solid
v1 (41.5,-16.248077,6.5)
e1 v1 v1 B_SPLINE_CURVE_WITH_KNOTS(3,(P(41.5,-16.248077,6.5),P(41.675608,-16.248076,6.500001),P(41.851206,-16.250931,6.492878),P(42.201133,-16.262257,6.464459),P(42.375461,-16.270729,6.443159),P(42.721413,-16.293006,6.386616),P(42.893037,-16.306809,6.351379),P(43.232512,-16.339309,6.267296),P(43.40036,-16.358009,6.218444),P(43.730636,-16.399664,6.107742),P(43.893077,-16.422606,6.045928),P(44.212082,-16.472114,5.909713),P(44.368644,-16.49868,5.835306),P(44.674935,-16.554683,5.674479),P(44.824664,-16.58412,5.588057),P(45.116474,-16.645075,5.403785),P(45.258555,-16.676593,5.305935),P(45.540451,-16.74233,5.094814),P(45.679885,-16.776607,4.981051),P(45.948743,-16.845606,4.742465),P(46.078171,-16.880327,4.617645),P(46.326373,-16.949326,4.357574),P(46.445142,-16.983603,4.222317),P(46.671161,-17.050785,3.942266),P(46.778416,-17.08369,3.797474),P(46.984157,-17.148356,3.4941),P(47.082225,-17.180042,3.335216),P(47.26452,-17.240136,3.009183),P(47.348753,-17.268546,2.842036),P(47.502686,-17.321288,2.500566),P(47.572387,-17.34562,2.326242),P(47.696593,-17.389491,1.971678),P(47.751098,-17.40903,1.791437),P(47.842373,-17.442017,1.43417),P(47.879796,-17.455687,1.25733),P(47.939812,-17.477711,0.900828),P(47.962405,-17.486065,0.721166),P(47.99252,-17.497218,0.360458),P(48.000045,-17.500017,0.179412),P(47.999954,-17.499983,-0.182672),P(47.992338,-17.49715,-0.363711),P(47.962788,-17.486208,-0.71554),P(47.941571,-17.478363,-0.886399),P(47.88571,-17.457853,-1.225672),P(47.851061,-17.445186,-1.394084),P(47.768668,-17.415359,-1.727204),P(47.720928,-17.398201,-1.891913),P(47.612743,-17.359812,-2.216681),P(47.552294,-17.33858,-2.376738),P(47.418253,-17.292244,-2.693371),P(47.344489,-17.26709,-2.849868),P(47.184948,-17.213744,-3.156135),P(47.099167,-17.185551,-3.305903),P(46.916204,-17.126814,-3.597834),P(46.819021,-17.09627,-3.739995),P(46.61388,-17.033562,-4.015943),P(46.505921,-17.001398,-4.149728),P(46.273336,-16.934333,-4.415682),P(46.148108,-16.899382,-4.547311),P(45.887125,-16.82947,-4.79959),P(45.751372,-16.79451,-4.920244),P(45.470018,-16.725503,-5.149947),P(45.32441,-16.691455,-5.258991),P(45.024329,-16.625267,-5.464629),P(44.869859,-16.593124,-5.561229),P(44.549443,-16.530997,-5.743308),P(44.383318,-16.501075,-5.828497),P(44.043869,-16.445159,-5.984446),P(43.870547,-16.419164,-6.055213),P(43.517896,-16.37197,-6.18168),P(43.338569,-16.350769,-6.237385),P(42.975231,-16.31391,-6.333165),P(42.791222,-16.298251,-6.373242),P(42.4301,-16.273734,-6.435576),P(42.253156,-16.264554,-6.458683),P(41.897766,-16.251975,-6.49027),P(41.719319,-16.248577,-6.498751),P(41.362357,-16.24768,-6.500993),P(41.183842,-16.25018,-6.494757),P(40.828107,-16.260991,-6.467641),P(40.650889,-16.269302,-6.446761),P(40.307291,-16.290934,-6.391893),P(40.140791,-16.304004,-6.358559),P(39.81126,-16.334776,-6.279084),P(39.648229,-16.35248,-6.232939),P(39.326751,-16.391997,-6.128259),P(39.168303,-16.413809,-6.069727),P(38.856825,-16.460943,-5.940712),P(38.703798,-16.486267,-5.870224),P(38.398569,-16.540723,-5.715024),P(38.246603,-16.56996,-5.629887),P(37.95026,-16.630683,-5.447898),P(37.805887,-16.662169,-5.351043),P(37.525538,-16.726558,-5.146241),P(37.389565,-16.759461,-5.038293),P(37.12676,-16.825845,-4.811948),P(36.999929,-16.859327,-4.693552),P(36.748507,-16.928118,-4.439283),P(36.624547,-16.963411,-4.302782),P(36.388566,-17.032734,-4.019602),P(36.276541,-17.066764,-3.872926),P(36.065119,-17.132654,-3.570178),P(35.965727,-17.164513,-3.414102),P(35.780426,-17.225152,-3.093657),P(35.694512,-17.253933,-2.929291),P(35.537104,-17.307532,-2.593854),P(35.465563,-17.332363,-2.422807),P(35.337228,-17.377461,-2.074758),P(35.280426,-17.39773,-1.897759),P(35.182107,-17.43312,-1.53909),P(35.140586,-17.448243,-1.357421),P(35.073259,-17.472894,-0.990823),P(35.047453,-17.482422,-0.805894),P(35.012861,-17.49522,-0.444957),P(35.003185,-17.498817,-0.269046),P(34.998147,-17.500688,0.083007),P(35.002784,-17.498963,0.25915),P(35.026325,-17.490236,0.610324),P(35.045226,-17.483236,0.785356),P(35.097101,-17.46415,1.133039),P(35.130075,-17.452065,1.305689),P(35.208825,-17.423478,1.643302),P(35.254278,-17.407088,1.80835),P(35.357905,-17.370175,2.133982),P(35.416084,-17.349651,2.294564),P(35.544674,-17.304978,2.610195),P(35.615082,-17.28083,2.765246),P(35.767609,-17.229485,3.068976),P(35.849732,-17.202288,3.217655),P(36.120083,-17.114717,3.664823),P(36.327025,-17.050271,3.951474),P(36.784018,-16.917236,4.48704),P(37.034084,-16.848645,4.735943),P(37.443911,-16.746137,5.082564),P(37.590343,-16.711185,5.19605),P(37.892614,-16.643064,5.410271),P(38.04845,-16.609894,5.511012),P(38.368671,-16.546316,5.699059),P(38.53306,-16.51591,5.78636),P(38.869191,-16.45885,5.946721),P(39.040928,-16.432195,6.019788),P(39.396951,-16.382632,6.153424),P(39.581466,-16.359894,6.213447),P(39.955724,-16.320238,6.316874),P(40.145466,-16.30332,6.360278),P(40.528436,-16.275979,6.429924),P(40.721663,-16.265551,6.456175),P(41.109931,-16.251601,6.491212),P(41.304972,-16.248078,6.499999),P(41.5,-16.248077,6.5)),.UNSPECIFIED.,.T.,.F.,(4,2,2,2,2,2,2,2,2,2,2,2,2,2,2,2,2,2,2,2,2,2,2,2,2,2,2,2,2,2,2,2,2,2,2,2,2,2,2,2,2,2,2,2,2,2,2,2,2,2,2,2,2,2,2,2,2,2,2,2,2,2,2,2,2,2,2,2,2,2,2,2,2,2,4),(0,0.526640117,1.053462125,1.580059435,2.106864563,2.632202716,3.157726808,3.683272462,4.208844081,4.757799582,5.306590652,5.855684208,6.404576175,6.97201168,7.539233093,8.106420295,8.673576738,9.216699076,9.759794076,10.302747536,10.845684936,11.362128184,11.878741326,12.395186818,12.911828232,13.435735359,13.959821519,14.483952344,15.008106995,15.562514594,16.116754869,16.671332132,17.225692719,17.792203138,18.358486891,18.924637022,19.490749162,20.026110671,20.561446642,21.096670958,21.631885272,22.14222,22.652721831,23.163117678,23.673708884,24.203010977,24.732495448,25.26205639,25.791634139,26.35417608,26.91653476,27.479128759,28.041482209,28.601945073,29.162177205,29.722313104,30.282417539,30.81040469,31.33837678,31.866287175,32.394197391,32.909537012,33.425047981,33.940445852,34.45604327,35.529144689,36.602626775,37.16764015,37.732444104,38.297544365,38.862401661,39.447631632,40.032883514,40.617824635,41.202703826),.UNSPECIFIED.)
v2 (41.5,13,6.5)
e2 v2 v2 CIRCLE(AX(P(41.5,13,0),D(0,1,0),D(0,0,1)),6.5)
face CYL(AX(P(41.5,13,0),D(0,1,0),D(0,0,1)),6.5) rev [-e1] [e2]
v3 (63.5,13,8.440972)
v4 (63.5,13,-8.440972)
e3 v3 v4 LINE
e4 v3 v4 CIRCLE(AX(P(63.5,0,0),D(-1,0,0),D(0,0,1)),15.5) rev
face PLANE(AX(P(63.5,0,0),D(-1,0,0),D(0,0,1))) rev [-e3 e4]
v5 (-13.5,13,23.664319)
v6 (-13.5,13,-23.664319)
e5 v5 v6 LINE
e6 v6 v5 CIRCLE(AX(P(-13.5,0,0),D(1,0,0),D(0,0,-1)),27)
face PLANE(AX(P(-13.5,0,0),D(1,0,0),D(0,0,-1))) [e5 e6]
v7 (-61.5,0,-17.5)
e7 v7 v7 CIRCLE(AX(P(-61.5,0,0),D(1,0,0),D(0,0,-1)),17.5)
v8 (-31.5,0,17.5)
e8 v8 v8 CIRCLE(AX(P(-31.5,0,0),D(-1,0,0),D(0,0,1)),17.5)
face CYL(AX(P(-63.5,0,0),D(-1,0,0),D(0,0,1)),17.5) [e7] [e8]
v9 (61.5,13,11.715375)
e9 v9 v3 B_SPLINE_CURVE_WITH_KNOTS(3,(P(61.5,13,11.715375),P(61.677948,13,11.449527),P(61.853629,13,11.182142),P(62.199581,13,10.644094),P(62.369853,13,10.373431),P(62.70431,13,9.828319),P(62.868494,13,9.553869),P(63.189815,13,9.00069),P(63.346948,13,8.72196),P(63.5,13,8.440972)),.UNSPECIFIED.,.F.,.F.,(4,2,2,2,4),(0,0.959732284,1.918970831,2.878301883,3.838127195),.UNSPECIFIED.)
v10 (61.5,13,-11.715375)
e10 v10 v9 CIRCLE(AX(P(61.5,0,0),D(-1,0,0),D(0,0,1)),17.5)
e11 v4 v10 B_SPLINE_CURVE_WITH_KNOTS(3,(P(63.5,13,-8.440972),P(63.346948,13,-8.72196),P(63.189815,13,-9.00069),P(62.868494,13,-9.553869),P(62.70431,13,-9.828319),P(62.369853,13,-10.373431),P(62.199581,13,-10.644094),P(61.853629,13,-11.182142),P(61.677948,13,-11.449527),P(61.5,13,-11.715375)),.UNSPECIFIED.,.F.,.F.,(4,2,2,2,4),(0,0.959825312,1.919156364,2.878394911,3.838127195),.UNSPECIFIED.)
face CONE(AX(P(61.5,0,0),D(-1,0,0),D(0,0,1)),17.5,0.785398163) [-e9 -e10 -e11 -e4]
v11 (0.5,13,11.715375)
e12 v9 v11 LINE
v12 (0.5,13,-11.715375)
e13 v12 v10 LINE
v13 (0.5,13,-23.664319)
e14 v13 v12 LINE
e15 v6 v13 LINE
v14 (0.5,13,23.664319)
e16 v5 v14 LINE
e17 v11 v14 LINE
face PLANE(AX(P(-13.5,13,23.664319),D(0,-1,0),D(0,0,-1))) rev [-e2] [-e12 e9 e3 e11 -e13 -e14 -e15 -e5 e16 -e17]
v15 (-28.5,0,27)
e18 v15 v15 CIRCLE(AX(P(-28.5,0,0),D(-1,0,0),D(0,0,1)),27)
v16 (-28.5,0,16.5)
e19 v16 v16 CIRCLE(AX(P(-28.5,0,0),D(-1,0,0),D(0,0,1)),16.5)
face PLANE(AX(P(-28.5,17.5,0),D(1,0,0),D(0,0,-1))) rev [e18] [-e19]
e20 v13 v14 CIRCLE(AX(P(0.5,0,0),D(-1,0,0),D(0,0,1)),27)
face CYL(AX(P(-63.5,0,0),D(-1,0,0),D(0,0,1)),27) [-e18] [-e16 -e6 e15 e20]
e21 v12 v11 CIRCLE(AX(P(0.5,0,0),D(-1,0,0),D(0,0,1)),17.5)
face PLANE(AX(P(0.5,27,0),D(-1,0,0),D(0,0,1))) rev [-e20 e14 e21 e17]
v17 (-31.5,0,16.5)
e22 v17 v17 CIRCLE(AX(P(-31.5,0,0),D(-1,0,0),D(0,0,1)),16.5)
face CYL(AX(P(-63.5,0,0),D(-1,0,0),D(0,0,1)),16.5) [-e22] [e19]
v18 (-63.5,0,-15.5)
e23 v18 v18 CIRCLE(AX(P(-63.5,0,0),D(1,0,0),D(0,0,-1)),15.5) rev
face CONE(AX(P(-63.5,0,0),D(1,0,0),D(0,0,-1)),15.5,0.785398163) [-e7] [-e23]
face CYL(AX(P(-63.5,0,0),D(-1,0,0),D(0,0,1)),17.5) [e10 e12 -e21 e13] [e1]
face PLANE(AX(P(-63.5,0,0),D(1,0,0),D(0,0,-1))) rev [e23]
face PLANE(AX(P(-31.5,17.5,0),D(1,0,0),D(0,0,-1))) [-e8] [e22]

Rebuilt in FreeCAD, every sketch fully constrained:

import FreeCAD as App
import Part
import Sketcher
Q = App.Units.Quantity


def edges_at(feature, points):
    """Names of the edges that pass closest to the given points."""
    edges = feature.Shape.Edges
    near = lambda p: min(range(len(edges)), key=lambda i: edges[i].distToShape(Part.Vertex(*p))[0])
    return sorted({f"Edge{near(p) + 1}" for p in points})


def add_polygon(sketch, points):
    """Adds a closed chain of lines whose ends are joined by coincident constraints."""
    first, n = sketch.GeometryCount, len(points)
    for a, b in zip(points, points[1:] + points[:1]):
        sketch.addGeometry(Part.LineSegment(App.Vector(*a, 0), App.Vector(*b, 0)), False)
    for i in range(n):
        sketch.addConstraint(Sketcher.Constraint("Coincident", first + i, 2, first + (i + 1) % n, 1))

doc = App.newDocument("Part")
body = doc.addObject("PartDesign::Body", "Body")

# Sketch on XY plane
sketch1 = body.newObject("Sketcher::SketchObject", "Sketch")
sketch1.AttachmentSupport = (doc.getObject("XY_Plane"), [""])
sketch1.MapMode = "FlatFace"
add_polygon(sketch1, [(-64, 18), (-64, 0), (64, 0), (64, 18), (0, 18), (0, 27), (-28, 27), (-28, 18)])  # lines 0-7
sketch1.addConstraint([
    Sketcher.Constraint("Vertical", 0),
    Sketcher.Constraint("Horizontal", 1),
    Sketcher.Constraint("Vertical", 2),
    Sketcher.Constraint("Horizontal", 3),
    Sketcher.Constraint("Vertical", 4),
    Sketcher.Constraint("Horizontal", 5),
    Sketcher.Constraint("Vertical", 6),
    Sketcher.Constraint("Horizontal", 7),
    Sketcher.Constraint("Symmetric", 0, 2, 1, 2, -1, 1),
    Sketcher.Constraint("Horizontal", 3, 2, 6, 2),
    Sketcher.Constraint("DistanceX", 1, 1, 1, 2, Q("127 mm")),
    Sketcher.Constraint("DistanceX", 3, 2, 3, 1, Q("63 mm")),
    Sketcher.Constraint("DistanceX", 5, 2, 5, 1, Q("29 mm")),
    Sketcher.Constraint("DistanceY", 0, 2, 0, 1, Q("17.5 mm")),
    Sketcher.Constraint("DistanceY", 4, 1, 4, 2, Q("9.5 mm")),
])
revolution = body.newObject("PartDesign::Revolution", "Revolution")
revolution.Profile = sketch1
revolution.ReferenceAxis = (sketch1, ["H_Axis"])
revolution.Angle = 360

# Sketch on XY plane
sketch2 = body.newObject("Sketcher::SketchObject", "Sketch001")
sketch2.AttachmentSupport = (doc.getObject("XY_Plane"), [""])
sketch2.MapMode = "FlatFace"
add_polygon(sketch2, [(-31.5, 17.5), (-31.5, 16.5), (-28.5, 16.5), (-28.5, 17.5)])  # lines 0-3
sketch2.addConstraint([
    Sketcher.Constraint("Vertical", 0),
    Sketcher.Constraint("Horizontal", 1),
    Sketcher.Constraint("Vertical", 2),
    Sketcher.Constraint("Horizontal", 3),
    Sketcher.Constraint("DistanceX", 1, 1, 1, 2, Q("3 mm")),
    Sketcher.Constraint("DistanceY", 0, 2, 0, 1, Q("1 mm")),
    Sketcher.Constraint("DistanceX", 0, 2, -1, 1, Q("31.5 mm")),
    Sketcher.Constraint("DistanceY", -1, 1, 0, 2, Q("16.5 mm")),
])
groove = body.newObject("PartDesign::Groove", "Groove")
groove.Profile = sketch2
groove.ReferenceAxis = (sketch2, ["H_Axis"])
groove.Angle = 360

# Sketch on YZ plane
sketch3 = body.newObject("Sketcher::SketchObject", "Sketch002")
sketch3.AttachmentSupport = (doc.getObject("YZ_Plane"), [""])
sketch3.MapMode = "FlatFace"
sketch3.AttachmentOffset = App.Placement(App.Vector(0, 0, 63.5), App.Rotation())
add_polygon(sketch3, [(27, 24), (13, 24), (13, -24), (27, -24)])  # lines 0-3
sketch3.addConstraint([
    Sketcher.Constraint("Horizontal", 0),
    Sketcher.Constraint("Vertical", 1),
    Sketcher.Constraint("Horizontal", 2),
    Sketcher.Constraint("Vertical", 3),
    Sketcher.Constraint("DistanceX", 0, 2, 0, 1, Q("14 mm")),
    Sketcher.Constraint("DistanceX", -1, 1, 0, 2, Q("13 mm")),
    Sketcher.Constraint("DistanceY", 1, 2, 1, 1, Q("47.328638 mm")),
    Sketcher.Constraint("DistanceY", -1, 1, 0, 2, Q("23.664319 mm")),
])
pocket1 = body.newObject("PartDesign::Pocket", "Pocket")
pocket1.Profile = sketch3
pocket1.Length = 77

# Sketch on XZ plane
sketch4 = body.newObject("Sketcher::SketchObject", "Sketch003")
sketch4.AttachmentSupport = (doc.getObject("XZ_Plane"), [""])
sketch4.MapMode = "FlatFace"
sketch4.AttachmentOffset = App.Placement(App.Vector(0, 0, -13), App.Rotation())
sketch4.addGeometry(Part.Circle(App.Vector(42, 0, 0), App.Vector(0, 0, 1), 6), False)
sketch4.addConstraint([
    Sketcher.Constraint("PointOnObject", 0, 3, -1),
    Sketcher.Constraint("Diameter", 0, Q("13 mm")),
    Sketcher.Constraint("DistanceX", -1, 1, 0, 3, Q("41.5 mm")),
])
doc.recompute()
hole = body.newObject("PartDesign::Hole", "Hole")
hole.Profile = sketch4
hole.ThreadType = "None"
hole.Diameter = 13
hole.DepthType = "ThroughAll"
hole.Reversed = True
doc.recompute()

chamfer = body.newObject("PartDesign::Chamfer", "Chamfer")
chamfer.Base = (hole, edges_at(hole, [(63.5, -17.5, 0), (-63.5, 0, -17.5)]))
chamfer.Size = 2

doc.recompute()
